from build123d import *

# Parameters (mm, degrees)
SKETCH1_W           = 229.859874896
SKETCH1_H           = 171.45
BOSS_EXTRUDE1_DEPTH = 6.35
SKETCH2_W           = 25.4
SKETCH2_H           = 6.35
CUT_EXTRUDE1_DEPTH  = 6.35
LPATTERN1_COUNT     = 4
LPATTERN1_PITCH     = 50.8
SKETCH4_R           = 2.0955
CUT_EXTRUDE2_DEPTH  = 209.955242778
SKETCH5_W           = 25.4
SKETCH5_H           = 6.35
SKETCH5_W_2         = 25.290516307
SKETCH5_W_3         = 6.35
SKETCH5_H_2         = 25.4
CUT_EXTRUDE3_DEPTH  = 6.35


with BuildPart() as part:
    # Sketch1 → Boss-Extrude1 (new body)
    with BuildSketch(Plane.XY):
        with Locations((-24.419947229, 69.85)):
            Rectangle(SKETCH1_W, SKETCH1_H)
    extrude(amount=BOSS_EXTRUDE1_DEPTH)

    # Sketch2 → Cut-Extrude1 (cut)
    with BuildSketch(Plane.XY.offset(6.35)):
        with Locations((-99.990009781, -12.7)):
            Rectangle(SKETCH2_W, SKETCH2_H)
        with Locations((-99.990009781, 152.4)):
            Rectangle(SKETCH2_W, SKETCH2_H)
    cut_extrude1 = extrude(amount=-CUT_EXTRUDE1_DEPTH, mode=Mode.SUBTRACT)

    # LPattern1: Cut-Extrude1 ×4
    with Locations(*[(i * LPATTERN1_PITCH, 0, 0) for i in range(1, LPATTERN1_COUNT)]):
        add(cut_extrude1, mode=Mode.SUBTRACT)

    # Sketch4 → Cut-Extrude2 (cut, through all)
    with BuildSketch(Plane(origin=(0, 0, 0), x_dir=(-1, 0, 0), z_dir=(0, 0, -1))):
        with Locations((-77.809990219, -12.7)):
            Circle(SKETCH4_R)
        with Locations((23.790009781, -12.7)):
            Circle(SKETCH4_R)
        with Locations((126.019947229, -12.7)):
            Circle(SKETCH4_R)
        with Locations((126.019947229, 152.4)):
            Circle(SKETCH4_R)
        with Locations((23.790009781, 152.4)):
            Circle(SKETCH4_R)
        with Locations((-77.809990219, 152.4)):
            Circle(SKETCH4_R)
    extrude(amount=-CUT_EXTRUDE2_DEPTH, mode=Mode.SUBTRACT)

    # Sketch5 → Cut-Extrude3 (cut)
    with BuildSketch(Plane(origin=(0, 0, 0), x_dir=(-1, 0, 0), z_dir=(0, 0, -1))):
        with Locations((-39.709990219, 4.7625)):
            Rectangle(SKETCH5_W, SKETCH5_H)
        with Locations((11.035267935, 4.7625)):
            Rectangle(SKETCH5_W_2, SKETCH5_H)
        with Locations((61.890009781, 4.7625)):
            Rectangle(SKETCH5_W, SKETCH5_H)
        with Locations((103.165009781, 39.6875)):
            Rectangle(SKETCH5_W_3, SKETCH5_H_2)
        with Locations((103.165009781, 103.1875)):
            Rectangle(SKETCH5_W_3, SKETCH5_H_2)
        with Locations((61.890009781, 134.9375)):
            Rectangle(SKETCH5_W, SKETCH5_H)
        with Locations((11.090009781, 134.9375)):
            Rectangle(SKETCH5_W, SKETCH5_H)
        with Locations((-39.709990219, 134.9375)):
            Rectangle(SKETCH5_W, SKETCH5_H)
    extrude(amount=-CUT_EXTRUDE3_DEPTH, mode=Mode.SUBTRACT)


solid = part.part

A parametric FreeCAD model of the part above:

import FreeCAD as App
import Part
import Sketcher

V = App.Vector
Q = App.Units.Quantity


def add_polygon(sketch, points):
    """Adds a closed chain of lines whose ends are joined by coincident constraints."""
    first, n = sketch.GeometryCount, len(points)
    for a, b in zip(points, points[1:] + points[:1]):
        sketch.addGeometry(Part.LineSegment(App.Vector(*a, 0), App.Vector(*b, 0)), False)
    for i in range(n):
        sketch.addConstraint(Sketcher.Constraint("Coincident", first + i, 2, first + (i + 1) % n, 1))

doc = App.newDocument("Part")
body = doc.addObject("PartDesign::Body", "Body")

sketch1 = body.newObject("Sketcher::SketchObject", "Sketch")
sketch1.AttachmentSupport = (doc.getObject("XY_Plane"), [""])
sketch1.MapMode = "FlatFace"
add_polygon(sketch1, [(-139, 156), (-139, -16), (91, -16), (91, 156)])
sketch1.addConstraint(Sketcher.Constraint("Vertical", 0))
sketch1.addConstraint(Sketcher.Constraint("Horizontal", 1))
sketch1.addConstraint(Sketcher.Constraint("Vertical", 2))
sketch1.addConstraint(Sketcher.Constraint("Horizontal", 3))
sketch1.addConstraint(Sketcher.Constraint("DistanceY", 0, 2, 0, 1, Q("6.75 in")))
sketch1.addConstraint(Sketcher.Constraint("DistanceY", 0, 2, -1, 1, Q("0.625 in")))
sketch1.addConstraint(Sketcher.Constraint("DistanceX", 1, 1, 1, 2, Q("229.859875 mm")))
sketch1.addConstraint(Sketcher.Constraint("DistanceX", -1, 1, 1, 2, Q("90.50999 mm")))
pad1 = body.newObject("PartDesign::Pad", "Pad")
pad1.Profile = sketch1
pad1.Length = Q("0.25 in")

sketch2 = body.newObject("Sketcher::SketchObject", "Sketch001")
sketch2.AttachmentSupport = (doc.getObject("XY_Plane"), [""])
sketch2.MapMode = "FlatFace"
sketch2.AttachmentOffset = App.Placement(V(0, 0, 0.25 * 25.4), App.Rotation())
add_polygon(sketch2, [(-113, -10), (-113, -16), (-87, -16), (-87, -10)])
add_polygon(sketch2, [(-113, 156), (-113, 149), (-87, 149), (-87, 156)])
sketch2.addConstraint(Sketcher.Constraint("Vertical", 0))
sketch2.addConstraint(Sketcher.Constraint("Horizontal", 1))
sketch2.addConstraint(Sketcher.Constraint("Vertical", 2))
sketch2.addConstraint(Sketcher.Constraint("Horizontal", 3))
sketch2.addConstraint(Sketcher.Constraint("Vertical", 4))
sketch2.addConstraint(Sketcher.Constraint("Horizontal", 5))
sketch2.addConstraint(Sketcher.Constraint("Vertical", 6))
sketch2.addConstraint(Sketcher.Constraint("Horizontal", 7))
sketch2.addConstraint(Sketcher.Constraint("Vertical", 3, 2, 4, 2))
sketch2.addConstraint(Sketcher.Constraint("Vertical", 2, 2, 5, 2))
sketch2.addConstraint(Sketcher.Constraint("Equal", 2, 4))
sketch2.addConstraint(Sketcher.Constraint("DistanceX", 1, 1, 1, 2, Q("1 in")))
sketch2.addConstraint(Sketcher.Constraint("DistanceY", 0, 2, 0, 1, Q("0.25 in")))
sketch2.addConstraint(Sketcher.Constraint("DistanceY", 0, 2, 4, 2, Q("6.5 in")))
sketch2.addConstraint(Sketcher.Constraint("DistanceY", 0, 2, -1, 1, Q("0.625 in")))
sketch2.addConstraint(Sketcher.Constraint("DistanceX", 0, 2, -1, 1, Q("112.69001 mm")))
pocket1 = body.newObject("PartDesign::Pocket", "Pocket")
pocket1.Profile = sketch2
pocket1.Length = Q("0.25 in")
doc.recompute()

linearpattern = body.newObject("PartDesign::LinearPattern", "LinearPattern")
linearpattern.Originals = [pocket1]
linearpattern.Direction = (doc.getObject("X_Axis"), [""])
linearpattern.Mode = "offset"
linearpattern.Offset = Q("2 in")
linearpattern.Occurrences = 4
body.Tip = linearpattern

sketch3 = body.newObject("Sketcher::SketchObject", "Sketch002")
sketch3.AttachmentSupport = (doc.getObject("XY_Plane"), [""])
sketch3.MapMode = "FlatFace"
sketch3.addGeometry(Part.Circle(V(77.8, -12.7, 0), V(0, 0, 1), 2.1), False)
sketch3.addGeometry(Part.Circle(V(-23.8, -12.7, 0), V(0, 0, 1), 2.1), False)
sketch3.addGeometry(Part.Circle(V(-126, -12.7, 0), V(0, 0, 1), 2.1), False)
sketch3.addGeometry(Part.Circle(V(-126, 152.4, 0), V(0, 0, 1), 2.1), False)
sketch3.addGeometry(Part.Circle(V(-23.8, 152.4, 0), V(0, 0, 1), 2.1), False)
sketch3.addGeometry(Part.Circle(V(77.8, 152.4, 0), V(0, 0, 1), 2.1), False)
sketch3.addConstraint(Sketcher.Constraint("Equal", 0, 1))
sketch3.addConstraint(Sketcher.Constraint("Equal", 1, 2))
sketch3.addConstraint(Sketcher.Constraint("Equal", 2, 3))
sketch3.addConstraint(Sketcher.Constraint("Equal", 3, 4))
sketch3.addConstraint(Sketcher.Constraint("Equal", 4, 5))
sketch3.addConstraint(Sketcher.Constraint("Horizontal", 0, 3, 1, 3))
sketch3.addConstraint(Sketcher.Constraint("Horizontal", 1, 3, 2, 3))
sketch3.addConstraint(Sketcher.Constraint("Horizontal", 3, 3, 4, 3))
sketch3.addConstraint(Sketcher.Constraint("Horizontal", 4, 3, 5, 3))
sketch3.addConstraint(Sketcher.Constraint("Vertical", 2, 3, 3, 3))
sketch3.addConstraint(Sketcher.Constraint("Vertical", 1, 3, 4, 3))
sketch3.addConstraint(Sketcher.Constraint("Vertical", 0, 3, 5, 3))
sketch3.addConstraint(Sketcher.Constraint("Diameter", 0, Q("0.165 in")))
sketch3.addConstraint(Sketcher.Constraint("DistanceY", -1, 1, 3, 3, Q("6 in")))
sketch3.addConstraint(Sketcher.Constraint("DistanceX", 1, 3, 0, 3, Q("4 in")))
sketch3.addConstraint(Sketcher.Constraint("DistanceY", 0, 3, -1, 1, Q("0.5 in")))
sketch3.addConstraint(Sketcher.Constraint("DistanceX", -1, 1, 0, 3, Q("77.80999 mm")))
sketch3.addConstraint(Sketcher.Constraint("DistanceX", 2, 3, -1, 1, Q("126.019947 mm")))
pocket2 = body.newObject("PartDesign::Pocket", "Pocket001")
pocket2.Profile = sketch3
pocket2.Type = "ThroughAll"
pocket2.Reversed = True

sketch4 = body.newObject("Sketcher::SketchObject", "Sketch003")
sketch4.AttachmentSupport = (doc.getObject("XY_Plane"), [""])
sketch4.MapMode = "FlatFace"
add_polygon(sketch4, [(52, 8), (52, 2), (27, 2), (27, 8)])
add_polygon(sketch4, [(2, 8), (2, 2), (-24, 2), (-24, 8)])
add_polygon(sketch4, [(-49, 8), (-49, 2), (-75, 2), (-75, 8)])
add_polygon(sketch4, [(-100, 52), (-100, 27), (-106, 27), (-106, 52)])
add_polygon(sketch4, [(-100, 116), (-100, 90), (-106, 90), (-106, 116)])
add_polygon(sketch4, [(-49, 138), (-49, 132), (-75, 132), (-75, 138)])
add_polygon(sketch4, [(2, 138), (2, 132), (-24, 132), (-24, 138)])
add_polygon(sketch4, [(52, 138), (52, 132), (27, 132), (27, 138)])
sketch4.addConstraint(Sketcher.Constraint("Vertical", 0))
sketch4.addConstraint(Sketcher.Constraint("Horizontal", 1))
sketch4.addConstraint(Sketcher.Constraint("Vertical", 2))
sketch4.addConstraint(Sketcher.Constraint("Horizontal", 3))
sketch4.addConstraint(Sketcher.Constraint("Vertical", 4))
sketch4.addConstraint(Sketcher.Constraint("Horizontal", 5))
sketch4.addConstraint(Sketcher.Constraint("Vertical", 6))
sketch4.addConstraint(Sketcher.Constraint("Horizontal", 7))
sketch4.addConstraint(Sketcher.Constraint("Vertical", 8))
sketch4.addConstraint(Sketcher.Constraint("Horizontal", 9))
sketch4.addConstraint(Sketcher.Constraint("Vertical", 10))
sketch4.addConstraint(Sketcher.Constraint("Horizontal", 11))
sketch4.addConstraint(Sketcher.Constraint("Vertical", 12))
sketch4.addConstraint(Sketcher.Constraint("Horizontal", 13))
sketch4.addConstraint(Sketcher.Constraint("Vertical", 14))
sketch4.addConstraint(Sketcher.Constraint("Horizontal", 15))
sketch4.addConstraint(Sketcher.Constraint("Vertical", 16))
sketch4.addConstraint(Sketcher.Constraint("Horizontal", 17))
sketch4.addConstraint(Sketcher.Constraint("Vertical", 18))
sketch4.addConstraint(Sketcher.Constraint("Horizontal", 19))
sketch4.addConstraint(Sketcher.Constraint("Vertical", 20))
sketch4.addConstraint(Sketcher.Constraint("Horizontal", 21))
sketch4.addConstraint(Sketcher.Constraint("Vertical", 22))
sketch4.addConstraint(Sketcher.Constraint("Horizontal", 23))
sketch4.addConstraint(Sketcher.Constraint("Vertical", 24))
sketch4.addConstraint(Sketcher.Constraint("Horizontal", 25))
sketch4.addConstraint(Sketcher.Constraint("Vertical", 26))
sketch4.addConstraint(Sketcher.Constraint("Horizontal", 27))
sketch4.addConstraint(Sketcher.Constraint("Vertical", 28))
sketch4.addConstraint(Sketcher.Constraint("Horizontal", 29))
sketch4.addConstraint(Sketcher.Constraint("Vertical", 30))
sketch4.addConstraint(Sketcher.Constraint("Horizontal", 31))
sketch4.addConstraint(Sketcher.Constraint("Horizontal", 1, 2, 4, 2))
sketch4.addConstraint(Sketcher.Constraint("Horizontal", 3, 2, 6, 2))
sketch4.addConstraint(Sketcher.Constraint("Horizontal", 5, 2, 8, 2))
sketch4.addConstraint(Sketcher.Constraint("Horizontal", 7, 2, 10, 2))
sketch4.addConstraint(Sketcher.Constraint("Horizontal", 21, 2, 24, 2))
sketch4.addConstraint(Sketcher.Constraint("Horizontal", 23, 2, 26, 2))
sketch4.addConstraint(Sketcher.Constraint("Horizontal", 25, 2, 28, 2))
sketch4.addConstraint(Sketcher.Constraint("Horizontal", 27, 2, 30, 2))
sketch4.addConstraint(Sketcher.Constraint("Vertical", 15, 2, 16, 2))
sketch4.addConstraint(Sketcher.Constraint("Vertical", 14, 2, 17, 2))
sketch4.addConstraint(Sketcher.Constraint("Vertical", 11, 2, 20, 2))
sketch4.addConstraint(Sketcher.Constraint("Vertical", 10, 2, 21, 2))
sketch4.addConstraint(Sketcher.Constraint("Vertical", 7, 2, 24, 2))
sketch4.addConstraint(Sketcher.Constraint("Vertical", 3, 2, 28, 2))
sketch4.addConstraint(Sketcher.Constraint("Vertical", 2, 2, 29, 2))
sketch4.addConstraint(Sketcher.Constraint("Equal", 3, 9))
sketch4.addConstraint(Sketcher.Constraint("Equal", 23, 25))
sketch4.addConstraint(Sketcher.Constraint("Equal", 19, 0))
sketch4.addConstraint(Sketcher.Constraint("Equal", 31, 12))
sketch4.addConstraint(Sketcher.Constraint("Equal", 14, 16))
sketch4.addConstraint(Sketcher.Constraint("Equal", 10, 20))
sketch4.addConstraint(Sketcher.Constraint("DistanceX", 1, 2, 1, 1, Q("1 in")))
sketch4.addConstraint(Sketcher.Constraint("DistanceX", 4, 2, 1, 2, Q("1 in")))
sketch4.addConstraint(Sketcher.Constraint("DistanceX", 8, 2, 4, 2, Q("2 in")))
sketch4.addConstraint(Sketcher.Constraint("DistanceX", 12, 2, 10, 2, Q("1 in")))
sketch4.addConstraint(Sketcher.Constraint("DistanceY", 9, 2, 12, 2, Q("1 in")))
sketch4.addConstraint(Sketcher.Constraint("DistanceX", 13, 2, 13, 1, Q("0.25 in")))
sketch4.addConstraint(Sketcher.Constraint("DistanceY", 15, 2, 16, 2, Q("1.5 in")))
sketch4.addConstraint(Sketcher.Constraint("DistanceY", -1, 1, 0, 2, Q("0.0625 in")))
sketch4.addConstraint(Sketcher.Constraint("DistanceY", -1, 1, 20, 2, Q("5.1875 in")))
sketch4.addConstraint(Sketcher.Constraint("DistanceX", 5, 2, 5, 1, Q("25.290516 mm")))
sketch4.addConstraint(Sketcher.Constraint("DistanceX", -1, 1, 0, 2, Q("52.40999 mm")))
pocket3 = body.newObject("PartDesign::Pocket", "Pocket002")
pocket3.Profile = sketch4
pocket3.Length = Q("0.25 in")
pocket3.Reversed = True

doc.recompute()
